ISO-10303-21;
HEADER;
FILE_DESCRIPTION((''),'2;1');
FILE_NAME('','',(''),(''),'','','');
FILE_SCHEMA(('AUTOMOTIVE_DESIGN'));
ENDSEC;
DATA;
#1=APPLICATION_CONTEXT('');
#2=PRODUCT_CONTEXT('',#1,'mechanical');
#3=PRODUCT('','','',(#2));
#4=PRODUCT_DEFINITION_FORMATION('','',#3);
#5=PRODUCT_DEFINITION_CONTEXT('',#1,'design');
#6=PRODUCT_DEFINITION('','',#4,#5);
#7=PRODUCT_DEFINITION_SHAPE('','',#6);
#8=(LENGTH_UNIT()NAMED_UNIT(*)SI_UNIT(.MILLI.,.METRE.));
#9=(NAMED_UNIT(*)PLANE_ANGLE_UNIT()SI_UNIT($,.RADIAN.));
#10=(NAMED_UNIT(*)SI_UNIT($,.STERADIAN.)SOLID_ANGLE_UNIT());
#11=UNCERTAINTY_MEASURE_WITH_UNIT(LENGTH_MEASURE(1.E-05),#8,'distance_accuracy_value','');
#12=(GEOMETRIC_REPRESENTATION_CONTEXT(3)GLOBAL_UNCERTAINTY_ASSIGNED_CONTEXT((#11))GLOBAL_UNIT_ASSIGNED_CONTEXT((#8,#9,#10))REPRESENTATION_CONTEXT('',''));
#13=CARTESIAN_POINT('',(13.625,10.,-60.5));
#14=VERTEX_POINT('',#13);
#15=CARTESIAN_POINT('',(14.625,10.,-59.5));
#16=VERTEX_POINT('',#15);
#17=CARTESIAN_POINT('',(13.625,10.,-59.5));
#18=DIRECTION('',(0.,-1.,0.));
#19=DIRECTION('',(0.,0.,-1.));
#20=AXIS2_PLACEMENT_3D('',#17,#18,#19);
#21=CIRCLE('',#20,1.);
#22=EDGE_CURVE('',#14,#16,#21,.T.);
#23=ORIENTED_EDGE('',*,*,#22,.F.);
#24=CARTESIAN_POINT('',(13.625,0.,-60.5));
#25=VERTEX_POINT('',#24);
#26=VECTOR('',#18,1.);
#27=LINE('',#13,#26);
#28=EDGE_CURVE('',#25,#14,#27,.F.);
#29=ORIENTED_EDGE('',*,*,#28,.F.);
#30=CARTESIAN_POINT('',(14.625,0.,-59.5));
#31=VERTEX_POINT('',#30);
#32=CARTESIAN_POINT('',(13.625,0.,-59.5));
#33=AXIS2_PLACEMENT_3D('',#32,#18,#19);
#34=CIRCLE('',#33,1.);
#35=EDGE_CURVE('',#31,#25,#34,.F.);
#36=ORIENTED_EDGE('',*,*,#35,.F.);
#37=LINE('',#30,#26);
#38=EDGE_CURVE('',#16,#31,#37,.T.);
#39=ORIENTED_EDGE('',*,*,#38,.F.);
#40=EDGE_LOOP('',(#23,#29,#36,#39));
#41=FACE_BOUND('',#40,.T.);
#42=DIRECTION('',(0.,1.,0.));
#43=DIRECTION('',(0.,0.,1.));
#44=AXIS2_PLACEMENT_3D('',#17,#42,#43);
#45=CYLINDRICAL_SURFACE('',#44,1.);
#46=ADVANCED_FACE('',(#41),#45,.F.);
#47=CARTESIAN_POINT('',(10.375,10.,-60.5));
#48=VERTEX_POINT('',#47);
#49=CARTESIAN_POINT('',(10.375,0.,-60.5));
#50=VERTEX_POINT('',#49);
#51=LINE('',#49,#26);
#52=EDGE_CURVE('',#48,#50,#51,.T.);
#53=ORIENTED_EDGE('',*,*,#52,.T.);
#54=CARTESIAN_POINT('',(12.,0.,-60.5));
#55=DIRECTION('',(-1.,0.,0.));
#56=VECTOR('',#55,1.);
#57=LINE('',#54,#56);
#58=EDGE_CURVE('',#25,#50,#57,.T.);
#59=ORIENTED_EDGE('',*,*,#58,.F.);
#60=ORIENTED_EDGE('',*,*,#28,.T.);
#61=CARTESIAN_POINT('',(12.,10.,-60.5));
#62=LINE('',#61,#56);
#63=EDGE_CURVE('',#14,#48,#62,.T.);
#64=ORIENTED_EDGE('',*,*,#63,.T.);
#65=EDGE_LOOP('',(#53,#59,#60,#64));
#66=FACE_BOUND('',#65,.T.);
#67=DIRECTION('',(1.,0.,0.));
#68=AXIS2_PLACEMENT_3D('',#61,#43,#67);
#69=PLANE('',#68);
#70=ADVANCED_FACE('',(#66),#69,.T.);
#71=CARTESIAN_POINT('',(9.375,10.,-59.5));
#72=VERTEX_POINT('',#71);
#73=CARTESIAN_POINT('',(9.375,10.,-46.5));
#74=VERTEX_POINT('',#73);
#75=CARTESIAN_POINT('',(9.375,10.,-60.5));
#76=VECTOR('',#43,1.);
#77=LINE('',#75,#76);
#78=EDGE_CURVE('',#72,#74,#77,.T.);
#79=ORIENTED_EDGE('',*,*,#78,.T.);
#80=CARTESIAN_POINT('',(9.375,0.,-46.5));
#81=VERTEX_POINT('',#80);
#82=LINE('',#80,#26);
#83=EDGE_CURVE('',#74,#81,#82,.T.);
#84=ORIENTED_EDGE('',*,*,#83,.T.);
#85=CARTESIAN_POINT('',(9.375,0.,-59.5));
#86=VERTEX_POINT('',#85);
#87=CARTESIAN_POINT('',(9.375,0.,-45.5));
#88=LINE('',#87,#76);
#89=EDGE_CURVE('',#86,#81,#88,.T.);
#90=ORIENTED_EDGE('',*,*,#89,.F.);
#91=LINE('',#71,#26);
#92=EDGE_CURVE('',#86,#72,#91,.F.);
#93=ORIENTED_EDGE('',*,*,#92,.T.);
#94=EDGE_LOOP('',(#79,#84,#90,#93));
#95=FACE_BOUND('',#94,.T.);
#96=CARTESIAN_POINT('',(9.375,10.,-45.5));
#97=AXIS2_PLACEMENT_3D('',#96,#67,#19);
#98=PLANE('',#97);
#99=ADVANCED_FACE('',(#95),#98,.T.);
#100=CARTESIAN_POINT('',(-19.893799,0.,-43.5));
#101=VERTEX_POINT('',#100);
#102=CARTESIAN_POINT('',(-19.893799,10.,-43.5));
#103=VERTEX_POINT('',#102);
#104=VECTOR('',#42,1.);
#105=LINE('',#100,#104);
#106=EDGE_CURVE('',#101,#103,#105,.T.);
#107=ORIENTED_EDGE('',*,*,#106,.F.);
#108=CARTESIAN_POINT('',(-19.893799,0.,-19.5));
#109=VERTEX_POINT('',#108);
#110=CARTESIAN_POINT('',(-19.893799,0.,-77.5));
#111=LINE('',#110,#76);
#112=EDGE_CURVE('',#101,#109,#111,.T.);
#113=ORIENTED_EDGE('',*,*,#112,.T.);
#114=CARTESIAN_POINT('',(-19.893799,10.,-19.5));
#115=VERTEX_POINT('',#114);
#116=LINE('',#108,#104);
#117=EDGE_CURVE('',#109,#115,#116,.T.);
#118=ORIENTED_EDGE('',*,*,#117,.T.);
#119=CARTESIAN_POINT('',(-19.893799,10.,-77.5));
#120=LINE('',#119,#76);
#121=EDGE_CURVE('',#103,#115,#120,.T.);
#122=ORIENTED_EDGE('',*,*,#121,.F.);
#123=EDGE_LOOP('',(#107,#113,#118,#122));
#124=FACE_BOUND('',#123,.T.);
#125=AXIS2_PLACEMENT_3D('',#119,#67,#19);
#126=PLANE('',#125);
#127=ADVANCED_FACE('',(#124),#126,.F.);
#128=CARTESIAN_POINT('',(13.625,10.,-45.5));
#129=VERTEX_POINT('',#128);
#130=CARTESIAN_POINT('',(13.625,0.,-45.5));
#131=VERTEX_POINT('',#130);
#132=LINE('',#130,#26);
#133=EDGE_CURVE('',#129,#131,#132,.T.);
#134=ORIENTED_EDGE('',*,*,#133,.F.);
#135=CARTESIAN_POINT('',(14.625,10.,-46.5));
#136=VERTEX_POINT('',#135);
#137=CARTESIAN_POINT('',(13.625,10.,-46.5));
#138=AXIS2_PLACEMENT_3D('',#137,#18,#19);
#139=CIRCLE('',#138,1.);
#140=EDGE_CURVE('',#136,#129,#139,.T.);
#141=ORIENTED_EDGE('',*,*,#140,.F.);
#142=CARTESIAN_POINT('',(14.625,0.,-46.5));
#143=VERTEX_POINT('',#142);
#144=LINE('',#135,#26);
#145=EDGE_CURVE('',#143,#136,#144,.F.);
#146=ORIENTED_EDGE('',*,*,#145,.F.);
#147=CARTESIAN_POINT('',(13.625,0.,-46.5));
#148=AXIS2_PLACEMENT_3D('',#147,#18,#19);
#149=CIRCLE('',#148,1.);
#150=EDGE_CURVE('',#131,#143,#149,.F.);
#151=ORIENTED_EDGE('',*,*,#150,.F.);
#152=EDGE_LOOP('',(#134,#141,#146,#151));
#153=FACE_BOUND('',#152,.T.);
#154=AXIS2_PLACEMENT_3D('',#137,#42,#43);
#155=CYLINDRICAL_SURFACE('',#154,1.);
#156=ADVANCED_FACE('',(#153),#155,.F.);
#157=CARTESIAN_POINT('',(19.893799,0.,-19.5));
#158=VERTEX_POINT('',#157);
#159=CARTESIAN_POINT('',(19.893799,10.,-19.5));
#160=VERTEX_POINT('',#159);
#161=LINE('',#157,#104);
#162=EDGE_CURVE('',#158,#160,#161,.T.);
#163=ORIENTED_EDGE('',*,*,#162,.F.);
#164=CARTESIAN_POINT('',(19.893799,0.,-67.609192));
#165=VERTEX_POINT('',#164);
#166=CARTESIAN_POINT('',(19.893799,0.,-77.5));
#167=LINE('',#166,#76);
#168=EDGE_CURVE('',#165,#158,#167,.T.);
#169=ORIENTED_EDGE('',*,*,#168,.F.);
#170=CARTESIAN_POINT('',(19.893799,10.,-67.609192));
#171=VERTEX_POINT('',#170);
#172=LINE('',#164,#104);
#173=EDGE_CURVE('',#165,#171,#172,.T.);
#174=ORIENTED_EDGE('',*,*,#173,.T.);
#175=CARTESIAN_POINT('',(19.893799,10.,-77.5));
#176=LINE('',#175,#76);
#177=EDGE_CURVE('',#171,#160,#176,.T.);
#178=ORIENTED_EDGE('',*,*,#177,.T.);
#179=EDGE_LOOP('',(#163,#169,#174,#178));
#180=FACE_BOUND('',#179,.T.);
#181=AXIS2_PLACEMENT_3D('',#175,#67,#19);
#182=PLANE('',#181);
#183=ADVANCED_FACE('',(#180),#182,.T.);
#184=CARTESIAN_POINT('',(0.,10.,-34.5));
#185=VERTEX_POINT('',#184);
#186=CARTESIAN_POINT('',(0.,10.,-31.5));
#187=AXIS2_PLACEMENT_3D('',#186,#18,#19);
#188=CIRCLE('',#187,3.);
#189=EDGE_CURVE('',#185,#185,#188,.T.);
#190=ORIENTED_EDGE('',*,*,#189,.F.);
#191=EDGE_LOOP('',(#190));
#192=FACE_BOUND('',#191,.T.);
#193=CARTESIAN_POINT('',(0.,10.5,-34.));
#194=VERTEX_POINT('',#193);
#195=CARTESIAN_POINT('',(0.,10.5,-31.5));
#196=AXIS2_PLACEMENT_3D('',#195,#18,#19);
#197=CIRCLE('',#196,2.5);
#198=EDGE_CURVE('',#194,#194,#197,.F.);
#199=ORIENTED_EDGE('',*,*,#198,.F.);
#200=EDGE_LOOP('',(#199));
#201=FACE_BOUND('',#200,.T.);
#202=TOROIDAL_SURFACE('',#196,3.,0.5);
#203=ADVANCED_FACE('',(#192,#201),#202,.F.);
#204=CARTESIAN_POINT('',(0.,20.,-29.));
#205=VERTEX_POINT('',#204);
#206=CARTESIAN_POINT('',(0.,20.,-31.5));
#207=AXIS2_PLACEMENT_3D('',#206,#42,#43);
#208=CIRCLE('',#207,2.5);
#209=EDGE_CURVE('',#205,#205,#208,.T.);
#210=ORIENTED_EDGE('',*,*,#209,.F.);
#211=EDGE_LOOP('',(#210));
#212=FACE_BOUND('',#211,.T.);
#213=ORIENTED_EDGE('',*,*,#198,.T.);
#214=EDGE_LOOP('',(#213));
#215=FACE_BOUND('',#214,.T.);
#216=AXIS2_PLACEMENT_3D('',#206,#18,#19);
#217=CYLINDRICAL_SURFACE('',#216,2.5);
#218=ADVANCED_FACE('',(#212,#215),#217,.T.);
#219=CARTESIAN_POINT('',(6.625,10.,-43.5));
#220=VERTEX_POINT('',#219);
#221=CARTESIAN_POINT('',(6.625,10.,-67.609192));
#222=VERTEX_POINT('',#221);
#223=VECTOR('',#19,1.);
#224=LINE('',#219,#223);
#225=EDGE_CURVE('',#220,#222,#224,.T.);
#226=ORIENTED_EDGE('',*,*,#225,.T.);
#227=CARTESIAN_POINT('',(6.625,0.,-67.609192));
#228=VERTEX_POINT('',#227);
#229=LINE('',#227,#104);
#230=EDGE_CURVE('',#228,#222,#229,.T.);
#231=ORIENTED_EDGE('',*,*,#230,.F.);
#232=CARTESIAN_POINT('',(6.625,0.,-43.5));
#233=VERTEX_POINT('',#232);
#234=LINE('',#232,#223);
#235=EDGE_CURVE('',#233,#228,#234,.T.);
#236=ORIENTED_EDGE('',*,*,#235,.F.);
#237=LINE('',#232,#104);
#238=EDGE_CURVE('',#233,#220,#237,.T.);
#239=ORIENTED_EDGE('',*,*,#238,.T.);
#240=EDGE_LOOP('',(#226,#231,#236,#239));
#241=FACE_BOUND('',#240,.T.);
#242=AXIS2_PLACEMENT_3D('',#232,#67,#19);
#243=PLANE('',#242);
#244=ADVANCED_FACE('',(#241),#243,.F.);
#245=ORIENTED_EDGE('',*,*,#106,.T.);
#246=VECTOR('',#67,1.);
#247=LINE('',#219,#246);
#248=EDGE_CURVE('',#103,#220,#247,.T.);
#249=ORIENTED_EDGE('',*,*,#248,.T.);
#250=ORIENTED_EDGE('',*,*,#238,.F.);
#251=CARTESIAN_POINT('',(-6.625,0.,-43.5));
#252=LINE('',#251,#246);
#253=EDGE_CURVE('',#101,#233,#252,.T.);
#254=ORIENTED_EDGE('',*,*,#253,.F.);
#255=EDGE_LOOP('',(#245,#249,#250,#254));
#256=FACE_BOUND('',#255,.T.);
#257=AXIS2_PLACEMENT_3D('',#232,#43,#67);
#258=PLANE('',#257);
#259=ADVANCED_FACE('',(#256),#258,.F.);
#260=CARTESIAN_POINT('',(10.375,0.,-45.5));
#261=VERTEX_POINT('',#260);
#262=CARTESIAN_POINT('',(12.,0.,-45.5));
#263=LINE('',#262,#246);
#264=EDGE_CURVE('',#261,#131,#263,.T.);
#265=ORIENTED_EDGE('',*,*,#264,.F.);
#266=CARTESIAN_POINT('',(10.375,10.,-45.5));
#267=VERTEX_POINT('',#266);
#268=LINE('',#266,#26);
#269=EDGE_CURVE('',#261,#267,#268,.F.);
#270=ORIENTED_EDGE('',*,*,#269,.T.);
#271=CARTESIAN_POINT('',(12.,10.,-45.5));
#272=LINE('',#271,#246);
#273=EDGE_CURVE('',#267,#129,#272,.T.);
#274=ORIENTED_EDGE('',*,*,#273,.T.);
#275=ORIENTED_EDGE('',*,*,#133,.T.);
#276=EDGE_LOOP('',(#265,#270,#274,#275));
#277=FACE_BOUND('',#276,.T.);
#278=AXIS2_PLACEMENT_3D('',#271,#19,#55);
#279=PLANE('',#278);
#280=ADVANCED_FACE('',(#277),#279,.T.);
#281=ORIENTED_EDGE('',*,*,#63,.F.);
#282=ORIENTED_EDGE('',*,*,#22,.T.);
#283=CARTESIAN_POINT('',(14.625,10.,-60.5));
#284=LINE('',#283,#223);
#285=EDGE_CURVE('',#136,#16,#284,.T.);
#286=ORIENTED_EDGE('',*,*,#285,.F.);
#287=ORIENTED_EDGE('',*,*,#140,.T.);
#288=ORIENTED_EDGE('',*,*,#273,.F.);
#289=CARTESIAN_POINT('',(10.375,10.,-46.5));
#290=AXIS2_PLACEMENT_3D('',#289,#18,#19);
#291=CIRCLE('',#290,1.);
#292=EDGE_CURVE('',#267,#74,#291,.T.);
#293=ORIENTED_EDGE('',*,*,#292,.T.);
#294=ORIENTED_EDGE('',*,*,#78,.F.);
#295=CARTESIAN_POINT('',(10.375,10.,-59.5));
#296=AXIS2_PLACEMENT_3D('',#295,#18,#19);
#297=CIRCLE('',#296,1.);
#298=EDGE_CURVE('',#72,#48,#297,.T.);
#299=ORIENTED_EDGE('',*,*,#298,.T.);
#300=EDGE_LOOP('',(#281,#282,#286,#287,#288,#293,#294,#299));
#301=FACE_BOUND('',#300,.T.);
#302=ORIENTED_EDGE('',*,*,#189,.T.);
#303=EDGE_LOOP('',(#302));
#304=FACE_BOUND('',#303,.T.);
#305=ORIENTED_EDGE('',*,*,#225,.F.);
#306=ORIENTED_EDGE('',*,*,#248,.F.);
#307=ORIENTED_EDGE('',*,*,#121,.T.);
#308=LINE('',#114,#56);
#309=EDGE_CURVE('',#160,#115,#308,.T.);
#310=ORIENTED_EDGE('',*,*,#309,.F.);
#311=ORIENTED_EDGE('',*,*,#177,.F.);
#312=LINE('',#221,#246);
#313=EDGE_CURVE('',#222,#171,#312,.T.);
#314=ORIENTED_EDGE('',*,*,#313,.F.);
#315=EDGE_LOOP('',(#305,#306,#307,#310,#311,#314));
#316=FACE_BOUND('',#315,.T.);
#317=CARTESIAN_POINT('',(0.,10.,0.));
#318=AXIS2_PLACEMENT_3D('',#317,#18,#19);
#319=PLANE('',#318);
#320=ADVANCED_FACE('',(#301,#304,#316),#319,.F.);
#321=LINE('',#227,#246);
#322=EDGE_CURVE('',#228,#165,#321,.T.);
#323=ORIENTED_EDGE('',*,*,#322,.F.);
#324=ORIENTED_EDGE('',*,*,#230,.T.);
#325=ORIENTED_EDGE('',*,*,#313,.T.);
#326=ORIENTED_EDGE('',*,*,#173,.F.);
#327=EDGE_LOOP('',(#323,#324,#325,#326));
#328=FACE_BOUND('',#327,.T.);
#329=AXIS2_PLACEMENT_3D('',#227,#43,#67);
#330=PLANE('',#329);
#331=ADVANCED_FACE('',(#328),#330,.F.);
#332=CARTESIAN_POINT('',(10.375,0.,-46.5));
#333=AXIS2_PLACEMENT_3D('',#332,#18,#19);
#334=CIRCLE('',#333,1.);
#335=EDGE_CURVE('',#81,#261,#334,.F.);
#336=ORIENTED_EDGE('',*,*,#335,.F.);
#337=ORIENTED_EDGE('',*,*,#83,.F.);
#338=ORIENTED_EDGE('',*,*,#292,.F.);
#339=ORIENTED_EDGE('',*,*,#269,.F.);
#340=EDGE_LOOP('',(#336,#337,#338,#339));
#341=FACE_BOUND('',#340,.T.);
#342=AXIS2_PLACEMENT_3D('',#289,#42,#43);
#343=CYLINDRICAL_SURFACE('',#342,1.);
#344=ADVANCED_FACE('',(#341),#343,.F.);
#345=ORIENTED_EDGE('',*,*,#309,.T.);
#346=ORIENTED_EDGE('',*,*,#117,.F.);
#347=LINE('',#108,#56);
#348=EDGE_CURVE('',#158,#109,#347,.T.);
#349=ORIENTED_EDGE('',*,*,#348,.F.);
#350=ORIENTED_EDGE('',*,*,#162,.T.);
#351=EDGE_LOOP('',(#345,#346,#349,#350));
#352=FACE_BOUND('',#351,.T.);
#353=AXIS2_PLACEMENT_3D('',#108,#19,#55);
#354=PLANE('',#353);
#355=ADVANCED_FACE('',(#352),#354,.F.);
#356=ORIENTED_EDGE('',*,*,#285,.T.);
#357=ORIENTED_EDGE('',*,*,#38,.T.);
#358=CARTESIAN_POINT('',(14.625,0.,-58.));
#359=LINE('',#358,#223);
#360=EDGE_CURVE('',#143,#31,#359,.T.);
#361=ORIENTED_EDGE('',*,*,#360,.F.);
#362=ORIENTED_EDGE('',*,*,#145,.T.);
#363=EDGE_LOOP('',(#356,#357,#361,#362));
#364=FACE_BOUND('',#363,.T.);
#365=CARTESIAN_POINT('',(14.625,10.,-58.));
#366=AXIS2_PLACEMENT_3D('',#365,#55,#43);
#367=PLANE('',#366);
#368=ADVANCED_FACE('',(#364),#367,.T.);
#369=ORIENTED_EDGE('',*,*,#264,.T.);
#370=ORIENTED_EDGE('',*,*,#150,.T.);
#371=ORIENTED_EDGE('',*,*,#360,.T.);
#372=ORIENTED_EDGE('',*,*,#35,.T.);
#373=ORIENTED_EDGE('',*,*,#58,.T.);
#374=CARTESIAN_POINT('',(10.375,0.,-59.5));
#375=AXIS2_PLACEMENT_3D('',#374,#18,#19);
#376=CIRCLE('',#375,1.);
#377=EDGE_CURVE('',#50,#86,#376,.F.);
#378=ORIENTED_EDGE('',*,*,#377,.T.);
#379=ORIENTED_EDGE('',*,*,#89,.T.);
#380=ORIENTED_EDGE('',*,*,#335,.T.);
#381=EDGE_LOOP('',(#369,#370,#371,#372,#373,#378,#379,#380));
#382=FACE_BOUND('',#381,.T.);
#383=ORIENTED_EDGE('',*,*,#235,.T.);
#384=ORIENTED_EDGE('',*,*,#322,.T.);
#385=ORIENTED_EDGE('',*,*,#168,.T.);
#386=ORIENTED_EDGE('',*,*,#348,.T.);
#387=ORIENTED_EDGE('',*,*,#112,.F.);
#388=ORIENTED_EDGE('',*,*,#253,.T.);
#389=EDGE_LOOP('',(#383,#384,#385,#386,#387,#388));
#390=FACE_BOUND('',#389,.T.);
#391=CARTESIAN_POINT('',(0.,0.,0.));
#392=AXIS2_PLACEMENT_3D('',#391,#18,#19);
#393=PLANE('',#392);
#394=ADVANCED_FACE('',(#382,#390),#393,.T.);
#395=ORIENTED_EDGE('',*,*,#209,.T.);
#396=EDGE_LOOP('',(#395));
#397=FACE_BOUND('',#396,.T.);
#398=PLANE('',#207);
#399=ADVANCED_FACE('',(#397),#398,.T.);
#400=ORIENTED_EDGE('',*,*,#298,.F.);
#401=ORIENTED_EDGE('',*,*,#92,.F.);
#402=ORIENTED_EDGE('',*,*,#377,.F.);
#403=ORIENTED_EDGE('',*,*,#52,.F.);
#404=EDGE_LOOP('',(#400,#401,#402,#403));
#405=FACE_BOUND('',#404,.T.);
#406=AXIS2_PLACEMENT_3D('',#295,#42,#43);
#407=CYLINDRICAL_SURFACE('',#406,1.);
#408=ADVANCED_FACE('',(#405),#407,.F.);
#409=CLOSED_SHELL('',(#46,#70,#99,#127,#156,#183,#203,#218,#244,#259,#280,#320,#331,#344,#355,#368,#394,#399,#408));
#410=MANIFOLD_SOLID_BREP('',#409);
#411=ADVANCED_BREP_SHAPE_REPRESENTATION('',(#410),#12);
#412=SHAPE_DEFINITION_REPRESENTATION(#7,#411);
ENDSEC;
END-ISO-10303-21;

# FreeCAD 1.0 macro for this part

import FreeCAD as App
import Part
import Sketcher
Q = App.Units.Quantity


def edges_at(feature, points):
    """Names of the edges that pass closest to the given points."""
    edges = feature.Shape.Edges
    near = lambda p: min(range(len(edges)), key=lambda i: edges[i].distToShape(Part.Vertex(*p))[0])
    return sorted({f"Edge{near(p) + 1}" for p in points})


def add_polygon(sketch, points):
    """Adds a closed chain of lines whose ends are joined by coincident constraints."""
    first, n = sketch.GeometryCount, len(points)
    for a, b in zip(points, points[1:] + points[:1]):
        sketch.addGeometry(Part.LineSegment(App.Vector(*a, 0), App.Vector(*b, 0)), False)
    for i in range(n):
        sketch.addConstraint(Sketcher.Constraint("Coincident", first + i, 2, first + (i + 1) % n, 1))

doc = App.newDocument("Part")
body = doc.addObject("PartDesign::Body", "Body")

# Sketch on XZ plane
sketch1 = doc.addObject("Sketcher::SketchObject", "Sketch")
body.addObject(sketch1)
sketch1.AttachmentSupport = (doc.XZ_Plane, [""])
sketch1.MapMode = "FlatFace"
add_polygon(sketch1, [(0, -77.5), (-19.893799, -77.5), (-19.893799, 14.5), (0, 14.5), (0, 12.5), (-2.625, 12.5), (-2.625, -2.5), (0, -2.5), (0, -60.5), (-2.625, -60.5), (-2.625, -75.5), (0, -75.5)])  # lines 0-11
sketch1.addConstraint([
    Sketcher.Constraint("Horizontal", 0),
    Sketcher.Constraint("Vertical", 1),
    Sketcher.Constraint("Horizontal", 2),
    Sketcher.Constraint("Vertical", 3),
    Sketcher.Constraint("Horizontal", 4),
    Sketcher.Constraint("Vertical", 5),
    Sketcher.Constraint("Horizontal", 6),
    Sketcher.Constraint("Vertical", 7),
    Sketcher.Constraint("Horizontal", 8),
    Sketcher.Constraint("Vertical", 9),
    Sketcher.Constraint("Horizontal", 10),
    Sketcher.Constraint("Vertical", 11),
    Sketcher.Constraint("PointOnObject", 2, 2, -2),
    Sketcher.Constraint("PointOnObject", 6, 2, -2),
    Sketcher.Constraint("PointOnObject", 10, 2, -2),
    Sketcher.Constraint("Vertical", 5, 2, 8, 2),
    Sketcher.Constraint("Equal", 5, 9),
    Sketcher.Constraint("Equal", 3, 11),
    Sketcher.Constraint("DistanceY", 1, 1, 1, 2, Q("92 mm")),
    Sketcher.Constraint("DistanceY", 3, 2, 3, 1, Q("2 mm")),
    Sketcher.Constraint("DistanceY", 5, 2, 5, 1, Q("15 mm")),
    Sketcher.Constraint("DistanceY", 0, 2, -1, 1, Q("77.5 mm")),
    Sketcher.Constraint("DistanceX", 4, 2, 4, 1, Q("2.625 mm")),
    Sketcher.Constraint("DistanceX", 0, 2, 0, 1, Q("19.893799 mm")),
])
pad1 = doc.addObject("PartDesign::Pad", "Pad")
body.addObject(pad1)
pad1.Profile = sketch1
pad1.Length = 10
pad1.Reversed = True
doc.recompute()

fillet = doc.addObject("PartDesign::Fillet", "Fillet")
body.addObject(fillet)
fillet.Base = (pad1, edges_at(pad1, [
    (-2.625, 5, 12.5),
    (-2.625, 5, -2.5),
    (-2.625, 5, -60.5),
    (-2.625, 5, -75.5),
]))
fillet.Radius = 1
doc.recompute()

mirrored = doc.addObject("PartDesign::Mirrored", "Mirrored")
body.addObject(mirrored)
mirrored.Originals = [pad1]
mirrored.MirrorPlane = (doc.YZ_Plane, [""])
body.Tip = mirrored
doc.recompute()

fillet2 = doc.addObject("PartDesign::Fillet", "Fillet001")
body.addObject(fillet2)
fillet2.Base = (mirrored, edges_at(mirrored, [
    (2.625, 5, 12.5),
    (2.625, 5, -2.5),
    (2.625, 5, -60.5),
    (2.625, 5, -75.5),
]))
fillet2.Radius = 1

# Sketch on XZ plane
sketch2 = doc.addObject("Sketcher::SketchObject", "Sketch001")
body.addObject(sketch2)
sketch2.AttachmentSupport = (doc.XZ_Plane, [""])
sketch2.MapMode = "FlatFace"
add_polygon(sketch2, [(-14.625, -2.5), (-9.375, -2.5), (-9.375, -17.5), (-14.625, -17.5)])  # lines 0-3
add_polygon(sketch2, [(9.375, -45.5), (14.625, -45.5), (14.625, -60.5), (9.375, -60.5)])  # lines 4-7
sketch2.addConstraint([
    Sketcher.Constraint("Horizontal", 0),
    Sketcher.Constraint("Vertical", 1),
    Sketcher.Constraint("Horizontal", 2),
    Sketcher.Constraint("Vertical", 3),
    Sketcher.Constraint("Horizontal", 4),
    Sketcher.Constraint("Vertical", 5),
    Sketcher.Constraint("Horizontal", 6),
    Sketcher.Constraint("Vertical", 7),
    Sketcher.Constraint("Equal", 2, 4),
    Sketcher.Constraint("Equal", 3, 5),
    Sketcher.Constraint("DistanceY", 1, 2, 1, 1, Q("15 mm")),
    Sketcher.Constraint("DistanceX", 1, 2, 4, 2, Q("24 mm")),
    Sketcher.Constraint("DistanceY", 4, 2, 1, 2, Q("28 mm")),
    Sketcher.Constraint("DistanceX", 0, 1, 0, 2, Q("5.25 mm")),
    Sketcher.Constraint("DistanceY", 0, 2, -1, 1, Q("2.5 mm")),
    Sketcher.Constraint("DistanceX", 0, 2, -1, 1, Q("9.375 mm")),
])
pocket1 = doc.addObject("PartDesign::Pocket", "Pocket")
body.addObject(pocket1)
pocket1.Profile = sketch2
pocket1.Type = "ThroughAll"
doc.recompute()

fillet3 = doc.addObject("PartDesign::Fillet", "Fillet002")
body.addObject(fillet3)
fillet3.Base = (pocket1, edges_at(pocket1, [
    (-14.625, 5, -17.5),
    (-14.625, 5, -2.5),
    (-9.375, 5, -2.5),
    (-9.375, 5, -17.5),
    (14.625, 5, -60.5),
    (9.375, 5, -60.5),
    (9.375, 5, -45.5),
    (14.625, 5, -45.5),
]))
fillet3.Radius = 1

# Sketch on XZ plane
sketch3 = doc.addObject("Sketcher::SketchObject", "Sketch002")
body.addObject(sketch3)
sketch3.AttachmentSupport = (doc.XZ_Plane, [""])
sketch3.MapMode = "FlatFace"
sketch3.AttachmentOffset = App.Placement(App.Vector(0, 0, -10), App.Rotation())
sketch3.addGeometry(Part.Circle(App.Vector(0, -31.5, 0), App.Vector(0, 0, 1), 2.5), False)
sketch3.addConstraint([
    Sketcher.Constraint("PointOnObject", 0, 3, -2),
    Sketcher.Constraint("Diameter", 0, Q("5 mm")),
    Sketcher.Constraint("DistanceY", 0, 3, -1, 1, Q("31.5 mm")),
])
pad2 = doc.addObject("PartDesign::Pad", "Pad001")
body.addObject(pad2)
pad2.Profile = sketch3
pad2.Length = 10
pad2.Reversed = True
doc.recompute()

fillet4 = doc.addObject("PartDesign::Fillet", "Fillet003")
body.addObject(fillet4)
fillet4.Base = (pad2, edges_at(pad2, [(0, 10, -29)]))
fillet4.Radius = 0.5

# Sketch on XZ plane
sketch4 = doc.addObject("Sketcher::SketchObject", "Sketch003")
body.addObject(sketch4)
sketch4.AttachmentSupport = (doc.XZ_Plane, [""])
sketch4.MapMode = "FlatFace"
sketch4.AttachmentOffset = App.Placement(App.Vector(0, 0, -10), App.Rotation())
add_polygon(sketch4, [(19.893799, -67.609192), (19.893799, -77.5), (-19.893799, -77.5), (-19.893799, -43.5), (6.625, -43.5), (6.625, -67.609192)])  # lines 0-5
add_polygon(sketch4, [(-19.893799, -19.5), (-19.893799, 14.5), (19.893799, 14.5), (19.893799, -19.5)])  # lines 6-9
sketch4.addConstraint([
    Sketcher.Constraint("Vertical", 0),
    Sketcher.Constraint("Horizontal", 1),
    Sketcher.Constraint("Vertical", 2),
    Sketcher.Constraint("Horizontal", 3),
    Sketcher.Constraint("Vertical", 4),
    Sketcher.Constraint("Horizontal", 5),
    Sketcher.Constraint("Vertical", 6),
    Sketcher.Constraint("Horizontal", 7),
    Sketcher.Constraint("Vertical", 8),
    Sketcher.Constraint("Horizontal", 9),
    Sketcher.Constraint("Vertical", 2, 2, 6, 2),
    Sketcher.Constraint("Vertical", 5, 2, 7, 2),
    Sketcher.Constraint("Equal", 2, 6),
    Sketcher.Constraint("DistanceY", 2, 1, 2, 2, Q("34 mm")),
    Sketcher.Constraint("DistanceY", 2, 2, 6, 2, Q("58 mm")),
    Sketcher.Constraint("DistanceY", 0, 2, -1, 1, Q("77.5 mm")),
    Sketcher.Constraint("DistanceX", 1, 2, 1, 1, Q("39.787598 mm")),
    Sketcher.Constraint("DistanceX", 3, 1, 3, 2, Q("26.518799 mm")),
    Sketcher.Constraint("DistanceX", -1, 1, 3, 2, Q("6.625 mm")),
    Sketcher.Constraint("DistanceY", 0, 2, 0, 1, Q("9.890808 mm")),
])
pocket2 = doc.addObject("PartDesign::Pocket", "Pocket001")
body.addObject(pocket2)
pocket2.Profile = sketch4
pocket2.Length = 10
pocket2.Reversed = True

doc.recompute()
